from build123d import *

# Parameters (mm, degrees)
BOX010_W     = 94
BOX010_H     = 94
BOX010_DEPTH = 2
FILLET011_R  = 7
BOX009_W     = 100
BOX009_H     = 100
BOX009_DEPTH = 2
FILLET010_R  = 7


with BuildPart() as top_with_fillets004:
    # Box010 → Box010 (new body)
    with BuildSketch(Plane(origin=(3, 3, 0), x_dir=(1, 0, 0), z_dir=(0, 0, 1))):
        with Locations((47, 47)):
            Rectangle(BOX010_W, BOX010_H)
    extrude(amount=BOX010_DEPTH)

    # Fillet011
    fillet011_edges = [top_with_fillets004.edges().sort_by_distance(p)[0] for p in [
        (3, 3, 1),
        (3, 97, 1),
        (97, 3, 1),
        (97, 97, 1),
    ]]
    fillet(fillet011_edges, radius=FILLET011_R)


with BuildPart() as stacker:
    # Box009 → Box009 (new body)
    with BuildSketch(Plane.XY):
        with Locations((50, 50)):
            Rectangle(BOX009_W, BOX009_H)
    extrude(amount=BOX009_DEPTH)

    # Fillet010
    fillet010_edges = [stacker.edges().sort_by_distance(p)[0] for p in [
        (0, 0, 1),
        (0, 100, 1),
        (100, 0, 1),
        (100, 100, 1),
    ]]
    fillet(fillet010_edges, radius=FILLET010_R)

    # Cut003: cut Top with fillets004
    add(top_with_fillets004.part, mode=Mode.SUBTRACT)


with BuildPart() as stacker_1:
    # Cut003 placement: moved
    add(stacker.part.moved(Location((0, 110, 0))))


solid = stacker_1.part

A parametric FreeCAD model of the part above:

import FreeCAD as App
import Part
import Sketcher

V = App.Vector


def edges_at(feature, points):
    """Names of the edges that pass closest to the given points."""
    edges = feature.Shape.Edges
    near = lambda p: min(range(len(edges)), key=lambda i: edges[i].distToShape(Part.Vertex(*p))[0])
    return sorted({f"Edge{near(p) + 1}" for p in points})

doc = App.newDocument("Part")
body = doc.addObject("PartDesign::Body", "Body")

# Sketch on XY plane
sketch1 = body.newObject("Sketcher::SketchObject", "Sketch")
sketch1.AttachmentSupport = (doc.getObject("XY_Plane"), [""])
sketch1.MapMode = "FlatFace"
sketch1.addGeometry(Part.LineSegment(V(3, 97, 0), V(3, 3, 0)), False)
sketch1.addGeometry(Part.LineSegment(V(3, 3, 0), V(97, 3, 0)), False)
sketch1.addGeometry(Part.LineSegment(V(97, 3, 0), V(97, 97, 0)), False)
sketch1.addGeometry(Part.LineSegment(V(97, 97, 0), V(3, 97, 0)), False)
sketch1.addConstraint(Sketcher.Constraint("Coincident", 0, 2, 1, 1))
sketch1.addConstraint(Sketcher.Constraint("Coincident", 1, 2, 2, 1))
sketch1.addConstraint(Sketcher.Constraint("Coincident", 2, 2, 3, 1))
sketch1.addConstraint(Sketcher.Constraint("Coincident", 3, 2, 0, 1))
sketch1.addConstraint(Sketcher.Constraint("Vertical", 0))
sketch1.addConstraint(Sketcher.Constraint("Horizontal", 1))
sketch1.addConstraint(Sketcher.Constraint("Vertical", 2))
sketch1.addConstraint(Sketcher.Constraint("Horizontal", 3))
sketch1.addConstraint(Sketcher.Constraint("Equal", 3, 0))
sketch1.addConstraint(Sketcher.Constraint("DistanceX", 1, 1, 1, 2, 94.0))
sketch1.addConstraint(Sketcher.Constraint("DistanceX", -1, 1, 0, 2, 3.0))
sketch1.addConstraint(Sketcher.Constraint("DistanceY", -1, 1, 0, 2, 3.0))
pad1 = body.newObject("PartDesign::Pad", "Pad")
pad1.Profile = sketch1
pad1.Length = 2
doc.recompute()

fillet = body.newObject("PartDesign::Fillet", "Fillet")
fillet.Base = (pad1, edges_at(pad1, [
    (3, 3, 1),
    (3, 97, 1),
    (97, 3, 1),
    (97, 97, 1),
]))
fillet.Radius = 7
body2 = doc.addObject("PartDesign::Body", "Body001")

# Sketch on XY plane
sketch2 = body2.newObject("Sketcher::SketchObject", "Sketch001")
sketch2.AttachmentSupport = (doc.getObject("XY_Plane001"), [""])
sketch2.MapMode = "FlatFace"
sketch2.addGeometry(Part.LineSegment(V(0, 100, 0), V(0, 0, 0)), False)
sketch2.addGeometry(Part.LineSegment(V(0, 0, 0), V(100, 0, 0)), False)
sketch2.addGeometry(Part.LineSegment(V(100, 0, 0), V(100, 100, 0)), False)
sketch2.addGeometry(Part.LineSegment(V(100, 100, 0), V(0, 100, 0)), False)
sketch2.addConstraint(Sketcher.Constraint("Coincident", 0, 2, 1, 1))
sketch2.addConstraint(Sketcher.Constraint("Coincident", 1, 2, 2, 1))
sketch2.addConstraint(Sketcher.Constraint("Coincident", 2, 2, 3, 1))
sketch2.addConstraint(Sketcher.Constraint("Coincident", 3, 2, 0, 1))
sketch2.addConstraint(Sketcher.Constraint("Vertical", 0))
sketch2.addConstraint(Sketcher.Constraint("Horizontal", 1))
sketch2.addConstraint(Sketcher.Constraint("Vertical", 2))
sketch2.addConstraint(Sketcher.Constraint("Horizontal", 3))
sketch2.addConstraint(Sketcher.Constraint("Coincident", 0, 2, -1, 1))
sketch2.addConstraint(Sketcher.Constraint("Equal", 3, 0))
sketch2.addConstraint(Sketcher.Constraint("DistanceX", 1, 1, 1, 2, 100.0))
pad2 = body2.newObject("PartDesign::Pad", "Pad001")
pad2.Profile = sketch2
pad2.Length = 2
doc.recompute()

fillet2 = body2.newObject("PartDesign::Fillet", "Fillet001")
fillet2.Base = (pad2, edges_at(pad2, [
    (0, 0, 1),
    (0, 100, 1),
    (100, 0, 1),
    (100, 100, 1),
]))
fillet2.Radius = 7
doc.recompute()

boolean = body2.newObject("PartDesign::Boolean", "Boolean")
boolean.Type = "Cut"
boolean.addObjects([body])
body3 = doc.addObject("PartDesign::Body", "Body002")
doc.recompute()

body2.Placement = App.Placement(V(0, 110, 0), App.Rotation(V(0, 0, 1), 0))
boolean2 = body3.newObject("PartDesign::Boolean", "Boolean001")
boolean2.Type = "Fuse"
boolean2.addObjects([body2])

doc.recompute()
